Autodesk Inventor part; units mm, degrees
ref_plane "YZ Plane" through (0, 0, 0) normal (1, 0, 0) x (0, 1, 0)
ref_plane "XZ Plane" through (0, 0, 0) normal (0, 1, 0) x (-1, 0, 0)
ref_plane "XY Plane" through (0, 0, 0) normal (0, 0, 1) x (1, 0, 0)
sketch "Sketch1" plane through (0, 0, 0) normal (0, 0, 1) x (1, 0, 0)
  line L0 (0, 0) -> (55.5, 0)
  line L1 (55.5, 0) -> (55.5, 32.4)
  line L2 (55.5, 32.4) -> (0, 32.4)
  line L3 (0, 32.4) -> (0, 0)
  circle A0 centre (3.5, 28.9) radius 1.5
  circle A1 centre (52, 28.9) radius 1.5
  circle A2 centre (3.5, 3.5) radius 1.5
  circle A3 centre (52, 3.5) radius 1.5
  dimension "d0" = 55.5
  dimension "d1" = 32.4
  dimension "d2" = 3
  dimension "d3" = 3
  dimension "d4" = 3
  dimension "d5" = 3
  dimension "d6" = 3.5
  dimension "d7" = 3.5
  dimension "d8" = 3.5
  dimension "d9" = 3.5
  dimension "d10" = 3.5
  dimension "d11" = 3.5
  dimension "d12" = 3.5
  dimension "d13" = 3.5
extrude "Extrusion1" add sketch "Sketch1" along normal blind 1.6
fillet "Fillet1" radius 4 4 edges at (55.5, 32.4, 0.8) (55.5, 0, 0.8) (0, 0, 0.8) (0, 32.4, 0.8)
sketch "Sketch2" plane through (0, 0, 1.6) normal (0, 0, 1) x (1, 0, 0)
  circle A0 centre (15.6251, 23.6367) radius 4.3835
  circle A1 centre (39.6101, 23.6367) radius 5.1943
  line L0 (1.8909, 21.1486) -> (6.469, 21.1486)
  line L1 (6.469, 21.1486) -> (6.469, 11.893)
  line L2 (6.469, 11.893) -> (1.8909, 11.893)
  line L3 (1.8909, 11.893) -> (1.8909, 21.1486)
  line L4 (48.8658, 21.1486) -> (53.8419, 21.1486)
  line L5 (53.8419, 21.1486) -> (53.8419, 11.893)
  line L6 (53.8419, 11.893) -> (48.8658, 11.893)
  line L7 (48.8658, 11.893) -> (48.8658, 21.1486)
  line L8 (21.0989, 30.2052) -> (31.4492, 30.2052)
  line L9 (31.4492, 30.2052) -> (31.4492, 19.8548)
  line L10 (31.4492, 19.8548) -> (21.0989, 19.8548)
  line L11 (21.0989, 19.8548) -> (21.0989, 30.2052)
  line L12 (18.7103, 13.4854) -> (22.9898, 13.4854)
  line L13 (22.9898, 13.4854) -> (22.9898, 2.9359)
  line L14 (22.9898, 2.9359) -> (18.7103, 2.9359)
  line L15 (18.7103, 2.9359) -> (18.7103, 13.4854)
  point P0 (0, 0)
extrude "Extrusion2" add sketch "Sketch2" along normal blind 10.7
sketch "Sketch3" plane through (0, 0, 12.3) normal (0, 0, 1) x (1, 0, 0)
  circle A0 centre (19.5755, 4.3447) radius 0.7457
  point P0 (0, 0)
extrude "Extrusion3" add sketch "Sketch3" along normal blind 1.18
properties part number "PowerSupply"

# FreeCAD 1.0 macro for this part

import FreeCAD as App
import Part
import Sketcher
from FreeCAD import Vector


def edges_at(feature, points):
    """Names of the edges that pass closest to the given points."""
    edges = feature.Shape.Edges
    near = lambda p: min(range(len(edges)), key=lambda i: edges[i].distToShape(Part.Vertex(*p))[0])
    return sorted({f"Edge{near(p) + 1}" for p in points})


def add_polygon(sketch, points):
    """Adds a closed chain of lines whose ends are joined by coincident constraints."""
    first, n = sketch.GeometryCount, len(points)
    for a, b in zip(points, points[1:] + points[:1]):
        sketch.addGeometry(Part.LineSegment(App.Vector(*a, 0), App.Vector(*b, 0)), False)
    for i in range(n):
        sketch.addConstraint(Sketcher.Constraint("Coincident", first + i, 2, first + (i + 1) % n, 1))

doc = App.newDocument("Part")
body = doc.addObject("PartDesign::Body", "Body")

# Sketch on XY plane
sketch1 = body.newObject("Sketcher::SketchObject", "Sketch")
sketch1.AttachmentSupport = (doc.getObject("XY_Plane"), [""])
sketch1.MapMode = "FlatFace"
add_polygon(sketch1, [(0, 32.4), (0, 0), (55.5, 0), (55.5, 32.4)])  # lines 0-3
sketch1.addGeometry(Part.Circle(Vector(3.5, 3.5, 0), Vector(0, 0, 1), 1.5), False)  # 4
sketch1.addGeometry(Part.Circle(Vector(52, 3.5, 0), Vector(0, 0, 1), 1.5), False)  # 5
sketch1.addGeometry(Part.Circle(Vector(3.5, 28.9, 0), Vector(0, 0, 1), 1.5), False)  # 6
sketch1.addGeometry(Part.Circle(Vector(52, 28.9, 0), Vector(0, 0, 1), 1.5), False)  # 7
sketch1.addConstraint(Sketcher.Constraint("Vertical", 0))
sketch1.addConstraint(Sketcher.Constraint("Horizontal", 1))
sketch1.addConstraint(Sketcher.Constraint("Vertical", 2))
sketch1.addConstraint(Sketcher.Constraint("Horizontal", 3))
sketch1.addConstraint(Sketcher.Constraint("Coincident", 0, 2, -1, 1))
sketch1.addConstraint(Sketcher.Constraint("Equal", 4, 5))
sketch1.addConstraint(Sketcher.Constraint("Equal", 5, 6))
sketch1.addConstraint(Sketcher.Constraint("Equal", 6, 7))
sketch1.addConstraint(Sketcher.Constraint("Horizontal", 4, 3, 5, 3))
sketch1.addConstraint(Sketcher.Constraint("Horizontal", 6, 3, 7, 3))
sketch1.addConstraint(Sketcher.Constraint("Vertical", 4, 3, 6, 3))
sketch1.addConstraint(Sketcher.Constraint("Vertical", 5, 3, 7, 3))
sketch1.addConstraint(Sketcher.Constraint("Diameter", 4, 3.0))
sketch1.addConstraint(Sketcher.Constraint("DistanceX", 1, 1, 1, 2, 55.5))
sketch1.addConstraint(Sketcher.Constraint("DistanceY", 0, 2, 0, 1, 32.4))
sketch1.addConstraint(Sketcher.Constraint("DistanceX", -1, 1, 4, 3, 3.5))
sketch1.addConstraint(Sketcher.Constraint("DistanceY", -1, 1, 4, 3, 3.5))
sketch1.addConstraint(Sketcher.Constraint("DistanceX", 5, 3, 1, 2, 3.5))
sketch1.addConstraint(Sketcher.Constraint("DistanceY", 7, 3, 2, 2, 3.5))
pad1 = body.newObject("PartDesign::Pad", "Pad")
pad1.Profile = sketch1
pad1.Length = 1.6
doc.recompute()

fillet = body.newObject("PartDesign::Fillet", "Fillet")
fillet.Base = (pad1, edges_at(pad1, [
    (55.5, 32.4, 0.8),
    (55.5, 0, 0.8),
    (0, 0, 0.8),
    (0, 32.4, 0.8),
]))
fillet.Radius = 4

# Sketch on XY plane
sketch2 = body.newObject("Sketcher::SketchObject", "Sketch001")
sketch2.AttachmentSupport = (doc.getObject("XY_Plane"), [""])
sketch2.MapMode = "FlatFace"
sketch2.AttachmentOffset = App.Placement(Vector(0, 0, 1.6), App.Rotation())
sketch2.addGeometry(Part.Circle(Vector(15.6251, 23.6367, 0), Vector(0, 0, 1), 4.3835), False)  # 0
sketch2.addGeometry(Part.Circle(Vector(39.6101, 23.6367, 0), Vector(0, 0, 1), 5.1943), False)  # 1
add_polygon(sketch2, [(6.469, 21.1486), (1.8909, 21.1486), (1.8909, 11.893), (6.469, 11.893)])  # lines 2-5
add_polygon(sketch2, [(53.8419, 21.1486), (48.8658, 21.1486), (48.8658, 11.893), (53.8419, 11.893)])  # lines 6-9
add_polygon(sketch2, [(31.4492, 30.2052), (21.0989, 30.2052), (21.0989, 19.8548), (31.4492, 19.8548)])  # lines 10-13
add_polygon(sketch2, [(22.9898, 13.4854), (18.7103, 13.4854), (18.7103, 2.9359), (22.9898, 2.9359)])  # lines 14-17
sketch2.addConstraint(Sketcher.Constraint("Horizontal", 2))
sketch2.addConstraint(Sketcher.Constraint("Vertical", 3))
sketch2.addConstraint(Sketcher.Constraint("Horizontal", 4))
sketch2.addConstraint(Sketcher.Constraint("Vertical", 5))
sketch2.addConstraint(Sketcher.Constraint("Horizontal", 6))
sketch2.addConstraint(Sketcher.Constraint("Vertical", 7))
sketch2.addConstraint(Sketcher.Constraint("Horizontal", 8))
sketch2.addConstraint(Sketcher.Constraint("Vertical", 9))
sketch2.addConstraint(Sketcher.Constraint("Horizontal", 10))
sketch2.addConstraint(Sketcher.Constraint("Vertical", 11))
sketch2.addConstraint(Sketcher.Constraint("Horizontal", 12))
sketch2.addConstraint(Sketcher.Constraint("Vertical", 13))
sketch2.addConstraint(Sketcher.Constraint("Horizontal", 14))
sketch2.addConstraint(Sketcher.Constraint("Vertical", 15))
sketch2.addConstraint(Sketcher.Constraint("Horizontal", 16))
sketch2.addConstraint(Sketcher.Constraint("Vertical", 17))
sketch2.addConstraint(Sketcher.Constraint("Horizontal", 0, 3, 1, 3))
sketch2.addConstraint(Sketcher.Constraint("Horizontal", 5, 2, 6, 2))
sketch2.addConstraint(Sketcher.Constraint("Horizontal", 4, 2, 7, 2))
sketch2.addConstraint(Sketcher.Constraint("Equal", 12, 11))
sketch2.addConstraint(Sketcher.Constraint("Diameter", 0, 8.767))
sketch2.addConstraint(Sketcher.Constraint("Diameter", 1, 10.3886))
sketch2.addConstraint(Sketcher.Constraint("DistanceX", 2, 2, 2, 1, 4.578))
sketch2.addConstraint(Sketcher.Constraint("DistanceX", 6, 2, 6, 1, 4.976))
sketch2.addConstraint(Sketcher.Constraint("DistanceX", -1, 1, 1, 3, 39.61))
sketch2.addConstraint(Sketcher.Constraint("DistanceX", 5, 2, 10, 2, 14.63))
sketch2.addConstraint(Sketcher.Constraint("DistanceX", 10, 2, 10, 1, 10.3503))
sketch2.addConstraint(Sketcher.Constraint("DistanceX", 14, 2, 14, 1, 4.2795))
sketch2.addConstraint(Sketcher.Constraint("DistanceY", 3, 2, 3, 1, 9.2556))
sketch2.addConstraint(Sketcher.Constraint("DistanceY", 15, 2, 15, 1, 10.5495))
sketch2.addConstraint(Sketcher.Constraint("DistanceX", -1, 1, 0, 3, 15.625))
sketch2.addConstraint(Sketcher.Constraint("DistanceX", -1, 1, 2, 2, 1.891))
sketch2.addConstraint(Sketcher.Constraint("DistanceY", -1, 1, 3, 2, 11.893))
sketch2.addConstraint(Sketcher.Constraint("DistanceX", -1, 1, 8, 2, 53.842))
sketch2.addConstraint(Sketcher.Constraint("DistanceY", -1, 1, 15, 2, 2.936))
sketch2.addConstraint(Sketcher.Constraint("DistanceY", 2, 2, 0, 3, 2.488))
sketch2.addConstraint(Sketcher.Constraint("DistanceY", 11, 2, 0, 3, 3.782))
sketch2.addConstraint(Sketcher.Constraint("DistanceX", 14, 2, 12, 2, 12.739))
pad2 = body.newObject("PartDesign::Pad", "Pad001")
pad2.Profile = sketch2
pad2.Length = 10.7

# Sketch on XY plane
sketch3 = body.newObject("Sketcher::SketchObject", "Sketch002")
sketch3.AttachmentSupport = (doc.getObject("XY_Plane"), [""])
sketch3.MapMode = "FlatFace"
sketch3.AttachmentOffset = App.Placement(Vector(0, 0, 12.3), App.Rotation())
sketch3.addGeometry(Part.Circle(Vector(19.5755, 4.3447, 0), Vector(0, 0, 1), 0.7457), False)
sketch3.addConstraint(Sketcher.Constraint("Diameter", 0, 1.4914))
sketch3.addConstraint(Sketcher.Constraint("DistanceX", -1, 1, 0, 3, 19.5755))
sketch3.addConstraint(Sketcher.Constraint("DistanceY", -1, 1, 0, 3, 4.3447))
pad3 = body.newObject("PartDesign::Pad", "Pad002")
pad3.Profile = sketch3
pad3.Length = 1.18

doc.recompute()
